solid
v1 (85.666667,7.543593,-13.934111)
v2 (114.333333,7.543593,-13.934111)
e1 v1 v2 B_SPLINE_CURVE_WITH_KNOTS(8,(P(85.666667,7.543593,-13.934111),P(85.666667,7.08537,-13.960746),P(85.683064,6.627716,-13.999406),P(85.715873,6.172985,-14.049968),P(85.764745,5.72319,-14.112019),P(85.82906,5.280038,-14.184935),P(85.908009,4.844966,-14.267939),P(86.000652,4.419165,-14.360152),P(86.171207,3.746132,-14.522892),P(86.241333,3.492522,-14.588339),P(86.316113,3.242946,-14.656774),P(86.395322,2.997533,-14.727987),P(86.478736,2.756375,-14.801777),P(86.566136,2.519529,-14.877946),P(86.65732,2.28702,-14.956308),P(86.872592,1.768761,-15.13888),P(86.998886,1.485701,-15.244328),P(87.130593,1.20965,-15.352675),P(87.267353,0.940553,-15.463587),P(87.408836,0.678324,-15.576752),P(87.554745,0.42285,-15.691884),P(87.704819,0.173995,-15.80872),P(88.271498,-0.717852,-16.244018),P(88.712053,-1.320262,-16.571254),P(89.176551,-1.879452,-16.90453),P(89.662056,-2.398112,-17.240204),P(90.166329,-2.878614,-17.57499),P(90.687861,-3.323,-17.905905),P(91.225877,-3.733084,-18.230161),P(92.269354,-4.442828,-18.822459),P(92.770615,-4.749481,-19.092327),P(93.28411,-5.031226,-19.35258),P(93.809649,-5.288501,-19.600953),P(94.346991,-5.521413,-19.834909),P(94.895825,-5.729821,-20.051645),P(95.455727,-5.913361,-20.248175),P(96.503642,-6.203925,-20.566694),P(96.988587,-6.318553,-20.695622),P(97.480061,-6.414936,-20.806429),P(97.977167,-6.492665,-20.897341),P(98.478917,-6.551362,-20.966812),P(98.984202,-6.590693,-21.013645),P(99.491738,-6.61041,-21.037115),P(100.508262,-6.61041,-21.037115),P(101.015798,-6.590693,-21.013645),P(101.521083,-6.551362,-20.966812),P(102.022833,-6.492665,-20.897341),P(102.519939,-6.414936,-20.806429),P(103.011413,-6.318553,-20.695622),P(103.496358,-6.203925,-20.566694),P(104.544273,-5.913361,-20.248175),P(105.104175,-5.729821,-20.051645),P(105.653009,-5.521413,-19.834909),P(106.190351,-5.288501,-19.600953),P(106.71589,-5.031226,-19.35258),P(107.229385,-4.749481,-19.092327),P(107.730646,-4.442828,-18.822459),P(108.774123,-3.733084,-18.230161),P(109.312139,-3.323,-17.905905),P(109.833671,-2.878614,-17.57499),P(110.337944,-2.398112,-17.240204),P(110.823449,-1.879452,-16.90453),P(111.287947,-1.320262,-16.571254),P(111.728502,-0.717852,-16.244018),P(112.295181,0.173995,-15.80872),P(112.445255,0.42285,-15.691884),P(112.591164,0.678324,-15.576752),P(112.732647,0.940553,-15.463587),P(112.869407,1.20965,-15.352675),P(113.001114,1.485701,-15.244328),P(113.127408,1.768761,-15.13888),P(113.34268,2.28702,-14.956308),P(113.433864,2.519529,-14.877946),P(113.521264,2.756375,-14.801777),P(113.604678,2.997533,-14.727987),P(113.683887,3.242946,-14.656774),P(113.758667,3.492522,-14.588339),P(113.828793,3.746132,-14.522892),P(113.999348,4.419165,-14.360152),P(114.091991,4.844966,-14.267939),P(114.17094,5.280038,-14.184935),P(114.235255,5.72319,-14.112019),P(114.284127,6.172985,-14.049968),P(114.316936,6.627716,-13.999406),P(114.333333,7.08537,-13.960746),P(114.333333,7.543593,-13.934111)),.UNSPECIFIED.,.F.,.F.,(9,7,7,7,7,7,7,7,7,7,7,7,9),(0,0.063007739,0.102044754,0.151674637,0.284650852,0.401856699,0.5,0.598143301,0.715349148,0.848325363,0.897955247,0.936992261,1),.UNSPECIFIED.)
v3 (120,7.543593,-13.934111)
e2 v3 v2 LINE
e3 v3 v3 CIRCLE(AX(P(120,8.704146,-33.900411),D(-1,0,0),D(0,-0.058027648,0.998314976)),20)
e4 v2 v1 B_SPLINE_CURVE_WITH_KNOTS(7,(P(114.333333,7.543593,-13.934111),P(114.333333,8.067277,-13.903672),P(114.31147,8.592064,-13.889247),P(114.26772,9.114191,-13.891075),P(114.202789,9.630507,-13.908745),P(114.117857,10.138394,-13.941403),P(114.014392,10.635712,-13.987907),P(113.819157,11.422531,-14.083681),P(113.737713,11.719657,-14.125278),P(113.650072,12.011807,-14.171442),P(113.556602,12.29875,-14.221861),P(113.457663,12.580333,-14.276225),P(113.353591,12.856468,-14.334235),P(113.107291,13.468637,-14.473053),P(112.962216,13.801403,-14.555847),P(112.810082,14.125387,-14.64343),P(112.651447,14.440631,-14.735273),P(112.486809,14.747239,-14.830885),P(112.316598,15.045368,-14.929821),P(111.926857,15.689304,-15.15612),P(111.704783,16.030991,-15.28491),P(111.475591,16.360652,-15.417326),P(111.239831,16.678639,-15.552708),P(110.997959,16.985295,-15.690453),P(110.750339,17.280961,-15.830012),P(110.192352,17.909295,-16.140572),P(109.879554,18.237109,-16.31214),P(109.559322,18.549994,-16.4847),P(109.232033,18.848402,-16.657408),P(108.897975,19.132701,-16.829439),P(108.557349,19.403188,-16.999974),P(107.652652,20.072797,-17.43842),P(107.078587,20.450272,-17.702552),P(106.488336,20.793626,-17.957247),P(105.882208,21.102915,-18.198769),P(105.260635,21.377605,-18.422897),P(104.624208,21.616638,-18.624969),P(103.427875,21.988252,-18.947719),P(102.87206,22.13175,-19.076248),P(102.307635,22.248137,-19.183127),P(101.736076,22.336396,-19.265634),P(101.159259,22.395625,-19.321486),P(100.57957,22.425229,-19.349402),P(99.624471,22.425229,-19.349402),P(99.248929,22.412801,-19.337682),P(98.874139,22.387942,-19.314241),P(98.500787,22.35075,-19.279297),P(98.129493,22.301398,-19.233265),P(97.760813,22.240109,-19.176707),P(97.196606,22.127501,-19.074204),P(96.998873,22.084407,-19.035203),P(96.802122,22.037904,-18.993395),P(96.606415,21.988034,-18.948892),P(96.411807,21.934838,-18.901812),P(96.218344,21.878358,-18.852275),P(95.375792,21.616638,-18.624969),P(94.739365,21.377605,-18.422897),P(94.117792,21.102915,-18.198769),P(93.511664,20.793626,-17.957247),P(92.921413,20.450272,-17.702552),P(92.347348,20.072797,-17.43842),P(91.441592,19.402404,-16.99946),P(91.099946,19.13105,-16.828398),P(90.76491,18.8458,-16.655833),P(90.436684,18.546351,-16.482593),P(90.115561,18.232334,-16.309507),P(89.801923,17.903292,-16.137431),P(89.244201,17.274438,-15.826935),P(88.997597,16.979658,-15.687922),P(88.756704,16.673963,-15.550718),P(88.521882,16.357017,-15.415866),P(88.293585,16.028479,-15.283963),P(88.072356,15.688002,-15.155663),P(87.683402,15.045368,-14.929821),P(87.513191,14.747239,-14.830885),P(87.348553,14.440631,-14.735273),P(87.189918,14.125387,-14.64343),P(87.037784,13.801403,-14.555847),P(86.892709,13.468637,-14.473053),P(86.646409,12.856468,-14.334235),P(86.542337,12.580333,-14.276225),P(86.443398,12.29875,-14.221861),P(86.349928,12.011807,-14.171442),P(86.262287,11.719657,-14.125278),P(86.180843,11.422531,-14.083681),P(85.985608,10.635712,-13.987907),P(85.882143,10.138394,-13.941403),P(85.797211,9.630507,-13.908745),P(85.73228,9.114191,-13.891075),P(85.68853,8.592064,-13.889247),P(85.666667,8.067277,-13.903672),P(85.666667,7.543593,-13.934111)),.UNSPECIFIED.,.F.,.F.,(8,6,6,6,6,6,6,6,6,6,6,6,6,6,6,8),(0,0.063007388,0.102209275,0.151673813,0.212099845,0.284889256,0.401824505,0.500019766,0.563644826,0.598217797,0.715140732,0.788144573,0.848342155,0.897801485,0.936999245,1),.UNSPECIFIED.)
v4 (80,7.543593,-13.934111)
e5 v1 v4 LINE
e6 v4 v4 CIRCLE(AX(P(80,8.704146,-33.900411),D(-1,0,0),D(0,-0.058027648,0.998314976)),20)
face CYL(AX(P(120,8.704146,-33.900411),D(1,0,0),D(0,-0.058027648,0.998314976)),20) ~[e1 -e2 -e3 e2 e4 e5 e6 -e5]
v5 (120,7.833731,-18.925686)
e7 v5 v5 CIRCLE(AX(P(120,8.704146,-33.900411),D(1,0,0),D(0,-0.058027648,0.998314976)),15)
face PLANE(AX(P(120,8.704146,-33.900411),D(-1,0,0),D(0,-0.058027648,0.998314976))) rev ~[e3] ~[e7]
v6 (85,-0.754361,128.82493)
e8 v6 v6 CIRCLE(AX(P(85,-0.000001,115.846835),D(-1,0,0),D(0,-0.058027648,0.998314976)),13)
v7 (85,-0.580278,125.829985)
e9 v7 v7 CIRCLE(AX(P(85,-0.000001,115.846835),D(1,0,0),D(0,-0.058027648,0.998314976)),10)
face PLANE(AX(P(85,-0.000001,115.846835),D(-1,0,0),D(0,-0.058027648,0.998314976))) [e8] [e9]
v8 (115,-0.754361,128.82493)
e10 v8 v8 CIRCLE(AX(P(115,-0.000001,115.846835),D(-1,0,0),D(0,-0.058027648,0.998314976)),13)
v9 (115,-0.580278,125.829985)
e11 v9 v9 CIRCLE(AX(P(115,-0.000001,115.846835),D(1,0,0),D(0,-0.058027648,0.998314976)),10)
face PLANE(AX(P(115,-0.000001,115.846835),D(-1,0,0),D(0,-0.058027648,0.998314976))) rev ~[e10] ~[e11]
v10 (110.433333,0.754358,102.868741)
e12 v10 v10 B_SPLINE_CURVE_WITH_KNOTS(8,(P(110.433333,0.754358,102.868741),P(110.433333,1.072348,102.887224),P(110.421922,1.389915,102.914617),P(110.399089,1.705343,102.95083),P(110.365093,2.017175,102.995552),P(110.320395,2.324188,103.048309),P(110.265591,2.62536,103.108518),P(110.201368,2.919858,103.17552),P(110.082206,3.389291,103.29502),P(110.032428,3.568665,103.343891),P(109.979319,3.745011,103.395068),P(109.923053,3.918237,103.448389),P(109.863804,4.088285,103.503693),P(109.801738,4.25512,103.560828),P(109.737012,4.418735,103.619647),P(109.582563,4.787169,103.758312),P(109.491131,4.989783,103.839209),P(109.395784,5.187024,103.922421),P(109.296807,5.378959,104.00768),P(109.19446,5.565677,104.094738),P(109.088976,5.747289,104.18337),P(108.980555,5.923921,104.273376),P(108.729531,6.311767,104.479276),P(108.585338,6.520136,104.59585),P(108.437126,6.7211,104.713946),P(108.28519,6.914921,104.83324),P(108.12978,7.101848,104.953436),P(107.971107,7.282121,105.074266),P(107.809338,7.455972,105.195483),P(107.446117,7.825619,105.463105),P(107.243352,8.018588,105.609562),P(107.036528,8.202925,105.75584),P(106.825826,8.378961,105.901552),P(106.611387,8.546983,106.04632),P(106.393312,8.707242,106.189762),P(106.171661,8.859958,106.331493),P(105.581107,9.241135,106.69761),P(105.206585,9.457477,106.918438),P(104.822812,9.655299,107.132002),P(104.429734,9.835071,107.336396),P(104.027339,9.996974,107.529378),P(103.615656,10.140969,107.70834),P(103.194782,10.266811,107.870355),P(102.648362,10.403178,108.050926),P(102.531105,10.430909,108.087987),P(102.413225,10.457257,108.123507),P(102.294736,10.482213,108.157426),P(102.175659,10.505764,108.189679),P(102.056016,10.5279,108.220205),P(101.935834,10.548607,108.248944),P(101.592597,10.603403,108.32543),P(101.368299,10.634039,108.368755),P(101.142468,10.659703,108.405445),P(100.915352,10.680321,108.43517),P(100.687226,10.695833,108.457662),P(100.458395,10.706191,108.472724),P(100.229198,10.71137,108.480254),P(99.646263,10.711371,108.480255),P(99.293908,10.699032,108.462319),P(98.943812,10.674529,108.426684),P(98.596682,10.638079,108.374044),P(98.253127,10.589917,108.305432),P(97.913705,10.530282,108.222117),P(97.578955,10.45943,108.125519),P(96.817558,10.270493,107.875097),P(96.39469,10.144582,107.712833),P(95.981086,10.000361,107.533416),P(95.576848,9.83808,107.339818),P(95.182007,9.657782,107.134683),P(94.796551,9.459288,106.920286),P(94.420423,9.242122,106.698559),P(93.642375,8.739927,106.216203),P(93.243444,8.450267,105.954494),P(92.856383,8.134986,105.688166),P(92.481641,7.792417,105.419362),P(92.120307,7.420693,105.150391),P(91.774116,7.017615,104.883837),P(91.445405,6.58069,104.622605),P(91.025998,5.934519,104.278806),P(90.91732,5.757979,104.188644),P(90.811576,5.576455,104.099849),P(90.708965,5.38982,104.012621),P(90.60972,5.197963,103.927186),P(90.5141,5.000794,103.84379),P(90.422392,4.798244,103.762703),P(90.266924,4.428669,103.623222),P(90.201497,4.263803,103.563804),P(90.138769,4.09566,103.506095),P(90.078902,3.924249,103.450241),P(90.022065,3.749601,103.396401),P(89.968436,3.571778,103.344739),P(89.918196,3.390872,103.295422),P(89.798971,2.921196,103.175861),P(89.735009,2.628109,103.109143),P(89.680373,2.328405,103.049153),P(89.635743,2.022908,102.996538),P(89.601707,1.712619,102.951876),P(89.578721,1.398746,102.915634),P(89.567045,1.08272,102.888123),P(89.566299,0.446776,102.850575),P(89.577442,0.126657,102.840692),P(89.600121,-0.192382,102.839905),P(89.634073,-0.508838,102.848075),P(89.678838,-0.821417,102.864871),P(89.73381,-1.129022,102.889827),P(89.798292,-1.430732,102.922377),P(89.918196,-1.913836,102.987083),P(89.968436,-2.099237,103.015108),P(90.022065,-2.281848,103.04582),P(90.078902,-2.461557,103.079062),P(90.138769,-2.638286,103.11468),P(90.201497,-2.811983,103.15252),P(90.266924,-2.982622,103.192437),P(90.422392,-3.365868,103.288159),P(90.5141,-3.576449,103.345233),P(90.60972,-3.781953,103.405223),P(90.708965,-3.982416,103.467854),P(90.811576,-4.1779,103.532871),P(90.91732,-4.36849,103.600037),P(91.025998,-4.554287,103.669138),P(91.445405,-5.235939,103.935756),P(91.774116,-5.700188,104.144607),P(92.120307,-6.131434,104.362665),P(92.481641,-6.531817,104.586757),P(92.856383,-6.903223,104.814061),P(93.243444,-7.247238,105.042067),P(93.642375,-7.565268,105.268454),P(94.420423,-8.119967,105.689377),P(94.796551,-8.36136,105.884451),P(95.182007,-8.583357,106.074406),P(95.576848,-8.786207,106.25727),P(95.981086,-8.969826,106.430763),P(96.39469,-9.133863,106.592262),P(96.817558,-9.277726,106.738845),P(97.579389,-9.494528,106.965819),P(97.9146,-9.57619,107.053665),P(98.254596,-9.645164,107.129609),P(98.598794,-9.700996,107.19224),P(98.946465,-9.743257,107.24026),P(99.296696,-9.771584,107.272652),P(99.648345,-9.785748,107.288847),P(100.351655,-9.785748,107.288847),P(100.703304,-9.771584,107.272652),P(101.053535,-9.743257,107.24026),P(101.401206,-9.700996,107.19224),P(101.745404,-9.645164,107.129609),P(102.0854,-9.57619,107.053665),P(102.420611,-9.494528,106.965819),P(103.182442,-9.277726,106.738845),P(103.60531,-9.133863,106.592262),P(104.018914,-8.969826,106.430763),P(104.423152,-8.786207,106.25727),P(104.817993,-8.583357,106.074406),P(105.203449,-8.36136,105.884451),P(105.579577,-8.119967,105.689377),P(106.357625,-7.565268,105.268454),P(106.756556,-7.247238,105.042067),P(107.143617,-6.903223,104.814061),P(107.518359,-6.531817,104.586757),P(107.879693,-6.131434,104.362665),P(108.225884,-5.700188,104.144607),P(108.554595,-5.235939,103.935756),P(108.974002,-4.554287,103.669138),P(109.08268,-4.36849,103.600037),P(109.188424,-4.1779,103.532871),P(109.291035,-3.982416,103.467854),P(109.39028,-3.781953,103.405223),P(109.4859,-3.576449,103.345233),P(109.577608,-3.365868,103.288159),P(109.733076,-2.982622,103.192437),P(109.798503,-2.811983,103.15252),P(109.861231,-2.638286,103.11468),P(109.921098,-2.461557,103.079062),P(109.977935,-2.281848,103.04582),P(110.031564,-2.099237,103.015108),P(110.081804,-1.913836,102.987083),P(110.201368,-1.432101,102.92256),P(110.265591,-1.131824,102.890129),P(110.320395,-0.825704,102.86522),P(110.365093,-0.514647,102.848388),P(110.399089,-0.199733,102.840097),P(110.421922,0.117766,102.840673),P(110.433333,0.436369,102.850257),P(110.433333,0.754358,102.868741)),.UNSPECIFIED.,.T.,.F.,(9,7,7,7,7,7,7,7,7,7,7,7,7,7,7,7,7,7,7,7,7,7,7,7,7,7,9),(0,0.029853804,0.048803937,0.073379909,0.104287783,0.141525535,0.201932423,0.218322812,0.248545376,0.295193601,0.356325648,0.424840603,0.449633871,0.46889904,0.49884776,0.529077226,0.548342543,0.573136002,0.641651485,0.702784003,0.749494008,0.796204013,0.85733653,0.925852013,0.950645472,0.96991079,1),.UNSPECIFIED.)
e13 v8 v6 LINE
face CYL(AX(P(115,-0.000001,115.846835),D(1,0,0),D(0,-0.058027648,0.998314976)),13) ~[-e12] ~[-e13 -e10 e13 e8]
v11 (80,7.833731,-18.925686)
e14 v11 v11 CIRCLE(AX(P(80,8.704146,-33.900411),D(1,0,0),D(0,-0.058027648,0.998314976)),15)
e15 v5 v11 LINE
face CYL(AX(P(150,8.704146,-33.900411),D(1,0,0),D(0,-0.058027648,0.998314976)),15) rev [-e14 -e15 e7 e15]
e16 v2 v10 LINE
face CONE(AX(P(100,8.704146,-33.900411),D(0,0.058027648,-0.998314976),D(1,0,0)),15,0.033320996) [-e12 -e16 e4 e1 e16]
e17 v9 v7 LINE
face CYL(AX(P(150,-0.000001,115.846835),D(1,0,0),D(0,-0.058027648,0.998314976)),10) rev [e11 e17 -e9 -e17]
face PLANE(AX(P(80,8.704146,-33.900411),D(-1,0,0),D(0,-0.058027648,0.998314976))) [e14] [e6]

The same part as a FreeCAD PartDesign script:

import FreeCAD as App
import Part
import Sketcher

doc = App.newDocument("Part")
body = doc.addObject("PartDesign::Body", "Body")

# Sketch on YZ plane
sketch1 = doc.addObject("Sketcher::SketchObject", "Sketch")
body.addObject(sketch1)
sketch1.AttachmentSupport = (doc.YZ_Plane, [""])
sketch1.MapMode = "FlatFace"
sketch1.AttachmentOffset = App.Placement(App.Vector(0, 0, 50), App.Rotation())
sketch1.addGeometry(Part.Circle(App.Vector(0, 150, 0), App.Vector(0, 0, 1), 10), False)
sketch1.addConstraint([
    Sketcher.Constraint("PointOnObject", 0, 3, -2),
    Sketcher.Constraint("Diameter", 0, 20.0),
    Sketcher.Constraint("DistanceY", -1, 1, 0, 3, 150.0),
])
pad1 = doc.addObject("PartDesign::Pad", "Pad")
body.addObject(pad1)
pad1.Profile = sketch1
pad1.Length = 100
pad1.Reversed = True
body2 = doc.addObject("PartDesign::Body", "Body001")
body2.AllowCompound = True

# Sketch on YZ plane
sketch2 = doc.addObject("Sketcher::SketchObject", "Sketch001")
body2.addObject(sketch2)
sketch2.AttachmentSupport = (doc.getObject("YZ_Plane001"), [""])
sketch2.MapMode = "FlatFace"
sketch2.AttachmentOffset = App.Placement(App.Vector(0, 0, 50), App.Rotation())
sketch2.addGeometry(Part.Circle(App.Vector(0, 0, 0), App.Vector(0, 0, 1), 15), False)
sketch2.addConstraint([
    Sketcher.Constraint("Coincident", 0, 3, -1, 1),
    Sketcher.Constraint("Diameter", 0, 30.0),
])
pad2 = doc.addObject("PartDesign::Pad", "Pad001")
body2.addObject(pad2)
pad2.Profile = sketch2
pad2.Length = 100
pad2.Reversed = True
doc.recompute()

boolean = doc.addObject("PartDesign::Boolean", "Boolean")
body2.addObject(boolean)
boolean.Type = "Fuse"
boolean.addObjects([body])
body3 = doc.addObject("PartDesign::Body", "Body002")

# Sketch on XZ plane
sketch3 = doc.addObject("Sketcher::SketchObject", "Sketch002")
body3.addObject(sketch3)
sketch3.AttachmentSupport = (doc.getObject("XZ_Plane002"), [""])
sketch3.MapMode = "FlatFace"
sketch3.addGeometry([
    Part.LineSegment(App.Vector(0, 0, 0), App.Vector(15, 0, 0)),
    Part.LineSegment(App.Vector(15, 0, 0), App.Vector(10, 150, 0)),
    Part.LineSegment(App.Vector(10, 150, 0), App.Vector(0, 150, 0)),
    Part.LineSegment(App.Vector(0, 150, 0), App.Vector(0, 0, 0)),
], False)
sketch3.addConstraint([
    Sketcher.Constraint("Coincident", 0, 2, 1, 1),
    Sketcher.Constraint("Coincident", 1, 2, 2, 1),
    Sketcher.Constraint("Coincident", 2, 2, 3, 1),
    Sketcher.Constraint("Coincident", 3, 2, 0, 1),
    Sketcher.Constraint("Horizontal", 0),
    Sketcher.Constraint("Horizontal", 2),
    Sketcher.Constraint("Vertical", 3),
    Sketcher.Constraint("Coincident", 3, 2, -1, 1),
    Sketcher.Constraint("DistanceX", 0, 1, 0, 2, 15.0),
    Sketcher.Constraint("DistanceX", 2, 2, 2, 1, 10.0),
    Sketcher.Constraint("DistanceY", 3, 2, 3, 1, 150.0),
])
revolution = doc.addObject("PartDesign::Revolution", "Revolution")
body3.addObject(revolution)
revolution.Profile = sketch3
revolution.ReferenceAxis = (sketch3, ["V_Axis"])
revolution.Angle = 360
body4 = doc.addObject("PartDesign::Body", "Body003")

# Sketch on YZ plane
sketch4 = doc.addObject("Sketcher::SketchObject", "Sketch003")
body4.addObject(sketch4)
sketch4.AttachmentSupport = (doc.getObject("YZ_Plane003"), [""])
sketch4.MapMode = "FlatFace"
sketch4.AttachmentOffset = App.Placement(App.Vector(0, 0, 15), App.Rotation())
sketch4.addGeometry(Part.Circle(App.Vector(0, 150, 0), App.Vector(0, 0, 1), 13), False)
sketch4.addConstraint([
    Sketcher.Constraint("PointOnObject", 0, 3, -2),
    Sketcher.Constraint("Diameter", 0, 26.0),
    Sketcher.Constraint("DistanceY", -1, 1, 0, 3, 150.0),
])
pad3 = doc.addObject("PartDesign::Pad", "Pad002")
body4.addObject(pad3)
pad3.Profile = sketch4
pad3.Length = 30
pad3.Reversed = True
body5 = doc.addObject("PartDesign::Body", "Body004")

# Sketch on YZ plane
sketch5 = doc.addObject("Sketcher::SketchObject", "Sketch004")
body5.addObject(sketch5)
sketch5.AttachmentSupport = (doc.getObject("YZ_Plane004"), [""])
sketch5.MapMode = "FlatFace"
sketch5.AttachmentOffset = App.Placement(App.Vector(0, 0, 20), App.Rotation())
sketch5.addGeometry(Part.Circle(App.Vector(0, 0, 0), App.Vector(0, 0, 1), 20), False)
sketch5.addConstraint([
    Sketcher.Constraint("Coincident", 0, 3, -1, 1),
    Sketcher.Constraint("Diameter", 0, 40.0),
])
pad4 = doc.addObject("PartDesign::Pad", "Pad003")
body5.addObject(pad4)
pad4.Profile = sketch5
pad4.Length = 40
pad4.Reversed = True
doc.recompute()

boolean2 = doc.addObject("PartDesign::Boolean", "Boolean001")
body5.addObject(boolean2)
boolean2.Type = "Fuse"
boolean2.addObjects([body3])
doc.recompute()

boolean3 = doc.addObject("PartDesign::Boolean", "Boolean002")
body5.addObject(boolean3)
boolean3.Type = "Fuse"
boolean3.addObjects([body4])
doc.recompute()

boolean4 = doc.addObject("PartDesign::Boolean", "Boolean003")
body5.addObject(boolean4)
boolean4.Type = "Cut"
boolean4.addObjects([body2])
body6 = doc.addObject("PartDesign::Body", "Body005")
doc.recompute()

body5.Placement = App.Placement(App.Vector(100, 8.704146, -33.900411), App.Rotation(App.Vector(1, 0, 0), 3.326608))
boolean5 = doc.addObject("PartDesign::Boolean", "Boolean004")
body6.addObject(boolean5)
boolean5.Type = "Fuse"
boolean5.addObjects([body5])

doc.recompute()
